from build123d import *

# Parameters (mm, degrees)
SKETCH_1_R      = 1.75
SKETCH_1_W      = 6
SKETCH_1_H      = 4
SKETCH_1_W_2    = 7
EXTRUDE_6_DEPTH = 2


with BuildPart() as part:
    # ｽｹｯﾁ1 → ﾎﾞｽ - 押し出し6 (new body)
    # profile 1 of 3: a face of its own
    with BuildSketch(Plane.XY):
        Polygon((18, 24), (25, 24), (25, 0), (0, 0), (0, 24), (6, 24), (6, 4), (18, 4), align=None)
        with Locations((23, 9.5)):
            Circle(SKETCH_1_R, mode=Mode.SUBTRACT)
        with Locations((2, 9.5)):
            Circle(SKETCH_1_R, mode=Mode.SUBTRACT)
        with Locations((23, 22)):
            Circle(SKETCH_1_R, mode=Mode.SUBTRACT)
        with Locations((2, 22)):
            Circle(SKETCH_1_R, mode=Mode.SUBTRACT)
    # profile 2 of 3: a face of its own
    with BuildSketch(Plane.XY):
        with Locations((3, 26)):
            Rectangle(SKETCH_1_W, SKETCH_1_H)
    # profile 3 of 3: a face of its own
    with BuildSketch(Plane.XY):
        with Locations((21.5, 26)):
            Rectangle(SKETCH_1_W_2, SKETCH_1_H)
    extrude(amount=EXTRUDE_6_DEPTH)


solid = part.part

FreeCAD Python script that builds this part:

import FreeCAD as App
import Part
import Sketcher
from FreeCAD import Vector

doc = App.newDocument("Part")
params = doc.addObject("Spreadsheet::Sheet", "Params")
for row, (alias, value) in enumerate([
    ("sketch1_diameter", "3.5 mm"),
    ("sketch1_width", "12 mm"),
    ("sketch1_width2", "6 mm"),
    ("sketch1_width3", "25 mm"),
    ("sketch1_height", "24 mm"),
    ("pad1_length", "2 mm"),
], start=1):
    params.set(f"A{row}", alias)
    params.set(f"B{row}", "=" + value)
    params.setAlias(f"B{row}", alias)

body = doc.addObject("PartDesign::Body", "Body")

sketch1 = body.newObject("Sketcher::SketchObject", "Sketch")
sketch1.AttachmentSupport = (doc.getObject("XY_Plane"), [""])
sketch1.MapMode = "FlatFace"
sketch1.addGeometry([
    Part.LineSegment(Vector(18, 28, 0), Vector(18, 4, 0)),
    Part.LineSegment(Vector(18, 4, 0), Vector(6, 4, 0)),
    Part.LineSegment(Vector(6, 4, 0), Vector(6, 28, 0)),
    Part.LineSegment(Vector(6, 28, 0), Vector(0, 28, 0)),
    Part.LineSegment(Vector(0, 28, 0), Vector(0, 0, 0)),
    Part.LineSegment(Vector(0, 0, 0), Vector(25, 0, 0)),
    Part.LineSegment(Vector(25, 0, 0), Vector(25, 28, 0)),
    Part.LineSegment(Vector(25, 28, 0), Vector(18, 28, 0)),
    Part.Circle(Vector(23, 9.5, 0), Vector(0, 0, 1), 1.8),
    Part.Circle(Vector(2, 9.5, 0), Vector(0, 0, 1), 1.8),
    Part.Circle(Vector(23, 22, 0), Vector(0, 0, 1), 1.8),
    Part.Circle(Vector(2, 22, 0), Vector(0, 0, 1), 1.8),
], False)
sketch1.addConstraint([
    Sketcher.Constraint("Coincident", 0, 2, 1, 1),
    Sketcher.Constraint("Coincident", 1, 2, 2, 1),
    Sketcher.Constraint("Coincident", 2, 2, 3, 1),
    Sketcher.Constraint("Coincident", 3, 2, 4, 1),
    Sketcher.Constraint("Coincident", 4, 2, 5, 1),
    Sketcher.Constraint("Coincident", 5, 2, 6, 1),
    Sketcher.Constraint("Coincident", 6, 2, 7, 1),
    Sketcher.Constraint("Coincident", 7, 2, 0, 1),
    Sketcher.Constraint("Vertical", 0),
    Sketcher.Constraint("Horizontal", 1),
    Sketcher.Constraint("Vertical", 2),
    Sketcher.Constraint("Horizontal", 3),
    Sketcher.Constraint("Vertical", 4),
    Sketcher.Constraint("Horizontal", 5),
    Sketcher.Constraint("Vertical", 6),
    Sketcher.Constraint("Horizontal", 7),
    Sketcher.Constraint("Coincident", 4, 2, -1, 1),
    Sketcher.Constraint("Equal", 8, 9),
    Sketcher.Constraint("Equal", 9, 10),
    Sketcher.Constraint("Equal", 10, 11),
    Sketcher.Constraint("Horizontal", 8, 3, 9, 3),
    Sketcher.Constraint("Horizontal", 10, 3, 11, 3),
    Sketcher.Constraint("Horizontal", 3, 2, 6, 2),
    Sketcher.Constraint("Vertical", 8, 3, 10, 3),
    Sketcher.Constraint("Vertical", 9, 3, 11, 3),
    Sketcher.Constraint("Diameter", 8, 3.5),
    Sketcher.Constraint("DistanceX", 1, 2, 1, 1, 12.0),
    Sketcher.Constraint("DistanceX", 3, 2, 3, 1, 6.0),
    Sketcher.Constraint("DistanceX", 5, 1, 5, 2, 25.0),
    Sketcher.Constraint("DistanceY", 0, 2, 0, 1, 24.0),
    Sketcher.Constraint("DistanceY", 4, 2, 4, 1, 28.0),
    Sketcher.Constraint("DistanceX", -1, 1, 8, 3, 23.0),
    Sketcher.Constraint("DistanceX", -1, 1, 9, 3, 2.0),
    Sketcher.Constraint("DistanceY", -1, 1, 10, 3, 22.0),
    Sketcher.Constraint("DistanceY", -1, 1, 8, 3, 9.5),
])
sketch1.setExpression("Constraints[25]", "Params.sketch1_diameter")
sketch1.setExpression("Constraints[26]", "Params.sketch1_width")
sketch1.setExpression("Constraints[27]", "Params.sketch1_width2")
sketch1.setExpression("Constraints[28]", "Params.sketch1_width3")
sketch1.setExpression("Constraints[29]", "Params.sketch1_height")
pad1 = body.newObject("PartDesign::Pad", "Pad")
pad1.Profile = sketch1
pad1.setExpression("Length", "Params.pad1_length")

doc.recompute()
